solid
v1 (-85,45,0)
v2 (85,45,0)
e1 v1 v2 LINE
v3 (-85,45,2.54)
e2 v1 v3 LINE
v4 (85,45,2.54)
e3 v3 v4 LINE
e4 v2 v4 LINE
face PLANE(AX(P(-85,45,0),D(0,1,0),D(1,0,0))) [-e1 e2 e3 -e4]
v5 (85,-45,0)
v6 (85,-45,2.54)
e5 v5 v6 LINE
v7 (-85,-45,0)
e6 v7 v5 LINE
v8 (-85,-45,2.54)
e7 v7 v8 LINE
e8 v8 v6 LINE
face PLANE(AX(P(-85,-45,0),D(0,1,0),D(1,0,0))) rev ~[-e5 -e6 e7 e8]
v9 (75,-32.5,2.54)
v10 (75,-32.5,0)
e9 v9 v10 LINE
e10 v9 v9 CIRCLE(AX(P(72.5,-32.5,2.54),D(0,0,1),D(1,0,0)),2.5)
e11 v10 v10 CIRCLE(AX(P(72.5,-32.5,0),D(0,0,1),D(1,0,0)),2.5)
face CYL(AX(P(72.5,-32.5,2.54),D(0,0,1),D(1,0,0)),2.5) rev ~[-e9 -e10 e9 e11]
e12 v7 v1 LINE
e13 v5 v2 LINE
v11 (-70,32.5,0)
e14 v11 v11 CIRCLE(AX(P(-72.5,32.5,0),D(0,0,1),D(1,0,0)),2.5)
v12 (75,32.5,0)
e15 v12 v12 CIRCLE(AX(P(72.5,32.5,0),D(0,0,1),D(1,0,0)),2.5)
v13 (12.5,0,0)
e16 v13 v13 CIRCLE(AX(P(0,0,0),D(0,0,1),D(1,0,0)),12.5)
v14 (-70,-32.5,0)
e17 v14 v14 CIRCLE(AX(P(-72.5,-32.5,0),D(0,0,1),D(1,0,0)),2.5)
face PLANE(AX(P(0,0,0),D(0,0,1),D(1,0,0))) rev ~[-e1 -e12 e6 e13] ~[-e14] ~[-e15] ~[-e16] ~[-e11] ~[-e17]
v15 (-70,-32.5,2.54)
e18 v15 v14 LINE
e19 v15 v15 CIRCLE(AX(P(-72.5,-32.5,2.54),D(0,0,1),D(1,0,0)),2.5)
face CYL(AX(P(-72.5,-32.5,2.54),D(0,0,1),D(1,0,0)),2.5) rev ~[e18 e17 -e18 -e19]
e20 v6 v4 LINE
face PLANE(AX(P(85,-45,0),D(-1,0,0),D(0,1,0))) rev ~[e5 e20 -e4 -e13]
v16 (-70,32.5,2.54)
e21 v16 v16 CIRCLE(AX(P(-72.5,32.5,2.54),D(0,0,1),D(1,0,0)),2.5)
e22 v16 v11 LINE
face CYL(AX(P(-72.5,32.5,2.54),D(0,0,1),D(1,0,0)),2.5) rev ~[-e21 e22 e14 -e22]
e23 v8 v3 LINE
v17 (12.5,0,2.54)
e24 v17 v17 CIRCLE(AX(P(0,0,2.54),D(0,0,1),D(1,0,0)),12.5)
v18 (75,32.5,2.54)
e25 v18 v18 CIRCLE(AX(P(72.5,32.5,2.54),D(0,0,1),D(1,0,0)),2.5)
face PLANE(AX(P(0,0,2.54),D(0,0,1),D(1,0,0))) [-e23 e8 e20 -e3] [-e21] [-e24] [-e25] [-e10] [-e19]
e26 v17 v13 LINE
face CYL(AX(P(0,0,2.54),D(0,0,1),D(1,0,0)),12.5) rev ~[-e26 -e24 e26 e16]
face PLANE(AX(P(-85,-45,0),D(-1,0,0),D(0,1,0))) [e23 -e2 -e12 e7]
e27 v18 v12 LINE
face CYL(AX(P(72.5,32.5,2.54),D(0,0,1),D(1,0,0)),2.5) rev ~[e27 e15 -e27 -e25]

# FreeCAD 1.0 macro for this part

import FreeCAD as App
import Part
import Sketcher
from FreeCAD import Vector

doc = App.newDocument("Part")
body = doc.addObject("PartDesign::Body", "Body")

# Sketch on XY plane
sketch1 = body.newObject("Sketcher::SketchObject", "Sketch")
sketch1.AttachmentSupport = (doc.getObject("XY_Plane"), [""])
sketch1.MapMode = "FlatFace"
sketch1.addGeometry(Part.LineSegment(Vector(-85, 45, 0), Vector(-85, -45, 0)), False)
sketch1.addGeometry(Part.LineSegment(Vector(-85, -45, 0), Vector(85, -45, 0)), False)
sketch1.addGeometry(Part.LineSegment(Vector(85, -45, 0), Vector(85, 45, 0)), False)
sketch1.addGeometry(Part.LineSegment(Vector(85, 45, 0), Vector(-85, 45, 0)), False)
sketch1.addConstraint(Sketcher.Constraint("Coincident", 0, 2, 1, 1))
sketch1.addConstraint(Sketcher.Constraint("Coincident", 1, 2, 2, 1))
sketch1.addConstraint(Sketcher.Constraint("Coincident", 2, 2, 3, 1))
sketch1.addConstraint(Sketcher.Constraint("Coincident", 3, 2, 0, 1))
sketch1.addConstraint(Sketcher.Constraint("Vertical", 0))
sketch1.addConstraint(Sketcher.Constraint("Horizontal", 1))
sketch1.addConstraint(Sketcher.Constraint("Vertical", 2))
sketch1.addConstraint(Sketcher.Constraint("Horizontal", 3))
sketch1.addConstraint(Sketcher.Constraint("Symmetric", 0, 2, 2, 2, -1, 1))
sketch1.addConstraint(Sketcher.Constraint("DistanceX", 1, 1, 1, 2, 170.0))
sketch1.addConstraint(Sketcher.Constraint("DistanceY", 0, 2, 0, 1, 90.0))
pad1 = body.newObject("PartDesign::Pad", "Pad")
pad1.Profile = sketch1
pad1.Length = 2.54

# Sketch on XY plane
sketch2 = body.newObject("Sketcher::SketchObject", "Sketch001")
sketch2.AttachmentSupport = (doc.getObject("XY_Plane"), [""])
sketch2.MapMode = "FlatFace"
sketch2.AttachmentOffset = App.Placement(Vector(0, 0, 2.54), App.Rotation())
sketch2.addGeometry(Part.Circle(Vector(0, 0, 0), Vector(0, 0, 1), 12), False)
sketch2.addConstraint(Sketcher.Constraint("Coincident", 0, 3, -1, 1))
sketch2.addConstraint(Sketcher.Constraint("Diameter", 0, 25.0))
pocket1 = body.newObject("PartDesign::Pocket", "Pocket")
pocket1.Profile = sketch2
pocket1.Type = "ThroughAll"

# Sketch on XY plane
sketch3 = body.newObject("Sketcher::SketchObject", "Sketch002")
sketch3.AttachmentSupport = (doc.getObject("XY_Plane"), [""])
sketch3.MapMode = "FlatFace"
sketch3.AttachmentOffset = App.Placement(Vector(0, 0, 2.54), App.Rotation())
sketch3.addGeometry(Part.Circle(Vector(-72.5, 32.5, 0), Vector(0, 0, 1), 2.5), False)
sketch3.addGeometry(Part.Circle(Vector(72.5, 32.5, 0), Vector(0, 0, 1), 2.5), False)
sketch3.addGeometry(Part.Circle(Vector(72.5, -32.5, 0), Vector(0, 0, 1), 2.5), False)
sketch3.addGeometry(Part.Circle(Vector(-72.5, -32.5, 0), Vector(0, 0, 1), 2.5), False)
sketch3.addConstraint(Sketcher.Constraint("Equal", 0, 1))
sketch3.addConstraint(Sketcher.Constraint("Equal", 1, 2))
sketch3.addConstraint(Sketcher.Constraint("Equal", 2, 3))
sketch3.addConstraint(Sketcher.Constraint("Symmetric", 0, 3, 2, 3, -1, 1))
sketch3.addConstraint(Sketcher.Constraint("Symmetric", 1, 3, 3, 3, -1, 1))
sketch3.addConstraint(Sketcher.Constraint("Symmetric", 0, 3, 1, 3, -2))
sketch3.addConstraint(Sketcher.Constraint("Diameter", 0, 5.0))
sketch3.addConstraint(Sketcher.Constraint("DistanceX", 0, 3, 1, 3, 145.0))
sketch3.addConstraint(Sketcher.Constraint("DistanceY", 2, 3, 1, 3, 65.0))
pocket2 = body.newObject("PartDesign::Pocket", "Pocket001")
pocket2.Profile = sketch3
pocket2.Type = "ThroughAll"

doc.recompute()
